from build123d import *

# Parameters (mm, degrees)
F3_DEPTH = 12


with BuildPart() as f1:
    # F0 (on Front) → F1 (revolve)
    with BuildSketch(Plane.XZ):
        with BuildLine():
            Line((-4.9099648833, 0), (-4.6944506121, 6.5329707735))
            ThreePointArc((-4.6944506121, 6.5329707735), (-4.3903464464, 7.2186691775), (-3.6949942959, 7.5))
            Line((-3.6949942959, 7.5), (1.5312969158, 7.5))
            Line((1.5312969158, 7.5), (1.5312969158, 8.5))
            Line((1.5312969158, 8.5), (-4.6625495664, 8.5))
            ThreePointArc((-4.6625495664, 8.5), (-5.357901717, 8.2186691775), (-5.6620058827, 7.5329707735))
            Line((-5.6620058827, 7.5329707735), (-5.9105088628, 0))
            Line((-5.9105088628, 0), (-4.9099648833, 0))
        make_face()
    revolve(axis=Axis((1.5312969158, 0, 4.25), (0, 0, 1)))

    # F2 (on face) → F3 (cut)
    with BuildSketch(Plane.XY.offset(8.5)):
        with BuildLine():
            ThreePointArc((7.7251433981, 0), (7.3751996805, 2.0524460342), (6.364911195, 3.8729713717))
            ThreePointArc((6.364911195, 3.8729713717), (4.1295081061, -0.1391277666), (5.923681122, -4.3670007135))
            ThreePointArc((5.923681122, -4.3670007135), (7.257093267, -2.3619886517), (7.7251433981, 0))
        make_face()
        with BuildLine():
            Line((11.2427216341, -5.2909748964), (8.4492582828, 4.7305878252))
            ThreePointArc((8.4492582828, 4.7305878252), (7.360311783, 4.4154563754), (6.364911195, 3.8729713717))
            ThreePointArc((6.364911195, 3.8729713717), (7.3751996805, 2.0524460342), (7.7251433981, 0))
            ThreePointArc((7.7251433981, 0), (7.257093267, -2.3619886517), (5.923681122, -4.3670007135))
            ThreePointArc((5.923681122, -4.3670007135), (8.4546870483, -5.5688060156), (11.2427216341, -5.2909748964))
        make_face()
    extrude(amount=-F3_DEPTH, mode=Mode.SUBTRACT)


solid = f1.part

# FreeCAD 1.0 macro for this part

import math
import FreeCAD as App
import Part
import Sketcher

doc = App.newDocument("Part")
params = doc.addObject("Spreadsheet::Sheet", "Params")
for row, (alias, value) in enumerate([
    ("sketch1_radius", "1 mm"),
    ("sketch1_height", "8.5 mm"),
    ("revolution_angle", "360 deg"),
    ("pocket1_length", "12 mm"),
], start=1):
    params.set(f"A{row}", alias)
    params.set(f"B{row}", "=" + value)
    params.setAlias(f"B{row}", alias)

body = doc.addObject("PartDesign::Body", "Body")

# Sketch on XZ plane
sketch1 = body.newObject("Sketcher::SketchObject", "Sketch")
sketch1.AttachmentSupport = (doc.getObject("XZ_Plane"), [""])
sketch1.MapMode = "FlatFace"
sketch1.addGeometry(Part.LineSegment(App.Vector(-4.9, 0, 0), App.Vector(-4.7, 6.5, 0)), False)
sketch1.addGeometry(Part.ArcOfCircle(Part.Circle(App.Vector(-3.7, 6.5, 0), App.Vector(0, 0, 1), 1), math.radians(90), math.radians(178)), False)
sketch1.addGeometry(Part.LineSegment(App.Vector(-3.7, 7.5, 0), App.Vector(1.5, 7.5, 0)), False)
sketch1.addGeometry(Part.LineSegment(App.Vector(1.5, 7.5, 0), App.Vector(1.5, 8.5, 0)), False)
sketch1.addGeometry(Part.LineSegment(App.Vector(1.5, 8.5, 0), App.Vector(-4.7, 8.5, 0)), False)
sketch1.addGeometry(Part.ArcOfCircle(Part.Circle(App.Vector(-4.7, 7.5, 0), App.Vector(0, 0, 1), 1), math.radians(90), math.radians(178)), False)
sketch1.addGeometry(Part.LineSegment(App.Vector(-5.7, 7.5, 0), App.Vector(-5.9, 0, 0)), False)
sketch1.addGeometry(Part.LineSegment(App.Vector(-5.9, 0, 0), App.Vector(-4.9, 0, 0)), False)
sketch1.addGeometry(Part.LineSegment(App.Vector(1.5, 0, 0), App.Vector(1.5, 8.5, 0)), True)  # axis
sketch1.addConstraint(Sketcher.Constraint("Tangent", 0, 2, 1, 2))
sketch1.addConstraint(Sketcher.Constraint("Tangent", 1, 1, 2, 1))
sketch1.addConstraint(Sketcher.Constraint("Coincident", 2, 2, 3, 1))
sketch1.addConstraint(Sketcher.Constraint("Coincident", 3, 2, 4, 1))
sketch1.addConstraint(Sketcher.Constraint("Tangent", 4, 2, 5, 1))
sketch1.addConstraint(Sketcher.Constraint("Tangent", 5, 2, 6, 1))
sketch1.addConstraint(Sketcher.Constraint("Coincident", 6, 2, 7, 1))
sketch1.addConstraint(Sketcher.Constraint("Coincident", 7, 2, 0, 1))
sketch1.addConstraint(Sketcher.Constraint("Horizontal", 2))
sketch1.addConstraint(Sketcher.Constraint("Vertical", 3))
sketch1.addConstraint(Sketcher.Constraint("Horizontal", 4))
sketch1.addConstraint(Sketcher.Constraint("Horizontal", 7))
sketch1.addConstraint(Sketcher.Constraint("Vertical", 8))
sketch1.addConstraint(Sketcher.Constraint("Coincident", 8, 2, 3, 2))
sketch1.addConstraint(Sketcher.Constraint("Equal", 1, 5))
sketch1.addConstraint(Sketcher.Constraint("PointOnObject", 6, 2, -1))
sketch1.addConstraint(Sketcher.Constraint("PointOnObject", 8, 1, -1))
sketch1.addConstraint(Sketcher.Constraint("Parallel", 0, 6))
sketch1.addConstraint(Sketcher.Constraint("Horizontal", 5, 3, 1, 1))
sketch1.addConstraint(Sketcher.Constraint("Radius", 1, 1.0))
sketch1.addConstraint(Sketcher.Constraint("DistanceY", 8, 1, 8, 2, 8.5))
sketch1.addConstraint(Sketcher.Constraint("DistanceX", 2, 1, 2, 2, 5.226291))
sketch1.addConstraint(Sketcher.Constraint("DistanceX", 0, 2, 5, 3, 0.031901))
sketch1.addConstraint(Sketcher.Constraint("Distance", 6, 7.537069))
sketch1.addConstraint(Sketcher.Constraint("DistanceX", 5, 3, -1, 1, 4.66255))
sketch1.setExpression("Constraints[19]", "Params.sketch1_radius")
sketch1.setExpression("Constraints[20]", "Params.sketch1_height")
revolution = body.newObject("PartDesign::Revolution", "Revolution")
revolution.Profile = sketch1
revolution.ReferenceAxis = (sketch1, ["Axis0"])
revolution.setExpression("Angle", "Params.revolution_angle")

# Sketch on XY plane
sketch2 = body.newObject("Sketcher::SketchObject", "Sketch001")
sketch2.AttachmentSupport = (doc.getObject("XY_Plane"), [""])
sketch2.MapMode = "FlatFace"
sketch2.AttachmentOffset = App.Placement(App.Vector(0, 0, 8.5), App.Rotation())
sketch2.addGeometry(Part.ArcOfCircle(Part.Circle(App.Vector(9.3, -0.4, 0), App.Vector(0, 0, 1), 5.2), math.radians(125), math.radians(229)), False)
sketch2.addGeometry(Part.ArcOfCircle(Part.Circle(App.Vector(9.3, -0.4, 0), App.Vector(0, 0, 1), 5.2), math.radians(-131), math.radians(-69)), False)
sketch2.addGeometry(Part.LineSegment(App.Vector(11.2, -5.3, 0), App.Vector(8.4, 4.7, 0)), False)
sketch2.addGeometry(Part.ArcOfCircle(Part.Circle(App.Vector(9.3, -0.4, 0), App.Vector(0, 0, 1), 5.2), math.radians(100), math.radians(125)), False)
sketch2.addConstraint(Sketcher.Constraint("Tangent", 0, 2, 1, 1))
sketch2.addConstraint(Sketcher.Constraint("Coincident", 1, 2, 2, 1))
sketch2.addConstraint(Sketcher.Constraint("Coincident", 2, 2, 3, 1))
sketch2.addConstraint(Sketcher.Constraint("Tangent", 3, 2, 0, 1))
sketch2.addConstraint(Sketcher.Constraint("Equal", 0, 1))
sketch2.addConstraint(Sketcher.Constraint("Equal", 1, 3))
sketch2.addConstraint(Sketcher.Constraint("DistanceY", 0, 2, -1, 1, 4.367001))
sketch2.addConstraint(Sketcher.Constraint("Radius", 0, 5.227297))
sketch2.addConstraint(Sketcher.Constraint("DistanceX", -1, 1, 0, 2, 5.923681))
sketch2.addConstraint(Sketcher.Constraint("DistanceX", -1, 1, 1, 2, 11.242722))
sketch2.addConstraint(Sketcher.Constraint("DistanceX", -1, 1, 2, 2, 8.449258))
sketch2.addConstraint(Sketcher.Constraint("DistanceX", -1, 1, 3, 2, 6.364911))
sketch2.addConstraint(Sketcher.Constraint("DistanceY", -1, 1, 3, 2, 3.872971))
pocket1 = body.newObject("PartDesign::Pocket", "Pocket")
pocket1.Profile = sketch2
pocket1.setExpression("Length", "Params.pocket1_length")

doc.recompute()
